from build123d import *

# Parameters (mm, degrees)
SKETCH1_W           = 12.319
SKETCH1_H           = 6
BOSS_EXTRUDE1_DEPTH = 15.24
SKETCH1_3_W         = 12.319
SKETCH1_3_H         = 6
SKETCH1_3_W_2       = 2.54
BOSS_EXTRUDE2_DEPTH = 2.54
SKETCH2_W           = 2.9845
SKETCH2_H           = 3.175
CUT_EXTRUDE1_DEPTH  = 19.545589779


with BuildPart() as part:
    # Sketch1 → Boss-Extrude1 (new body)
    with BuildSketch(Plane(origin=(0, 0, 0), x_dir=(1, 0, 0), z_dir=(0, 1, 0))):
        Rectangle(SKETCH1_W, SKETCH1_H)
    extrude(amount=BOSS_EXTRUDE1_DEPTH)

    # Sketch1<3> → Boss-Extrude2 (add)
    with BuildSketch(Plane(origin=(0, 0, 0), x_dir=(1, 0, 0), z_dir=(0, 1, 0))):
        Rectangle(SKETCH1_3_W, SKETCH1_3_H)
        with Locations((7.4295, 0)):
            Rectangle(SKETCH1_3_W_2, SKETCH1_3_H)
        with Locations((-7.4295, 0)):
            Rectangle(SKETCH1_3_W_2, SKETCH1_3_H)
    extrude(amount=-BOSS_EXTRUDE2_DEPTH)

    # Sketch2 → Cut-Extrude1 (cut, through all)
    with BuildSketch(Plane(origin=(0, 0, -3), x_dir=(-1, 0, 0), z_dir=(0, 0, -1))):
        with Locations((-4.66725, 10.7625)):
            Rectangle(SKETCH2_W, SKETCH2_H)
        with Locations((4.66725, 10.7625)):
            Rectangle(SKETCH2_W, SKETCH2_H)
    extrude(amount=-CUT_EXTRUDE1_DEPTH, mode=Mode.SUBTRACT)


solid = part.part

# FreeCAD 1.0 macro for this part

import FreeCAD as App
import Part
import Sketcher

V = App.Vector
Q = App.Units.Quantity

doc = App.newDocument("Part")
body = doc.addObject("PartDesign::Body", "Body")

# Sketch on XZ plane
sketch1 = body.newObject("Sketcher::SketchObject", "Sketch")
sketch1.AttachmentSupport = (doc.getObject("XZ_Plane"), [""])
sketch1.MapMode = "FlatFace"
sketch1.addGeometry([
    Part.LineSegment(V(-6, -3, 0), V(-6, 3, 0)),
    Part.LineSegment(V(-6, 3, 0), V(6, 3, 0)),
    Part.LineSegment(V(6, 3, 0), V(6, -3, 0)),
    Part.LineSegment(V(6, -3, 0), V(-6, -3, 0)),
], False)
sketch1.addConstraint([
    Sketcher.Constraint("Coincident", 0, 2, 1, 1),
    Sketcher.Constraint("Coincident", 1, 2, 2, 1),
    Sketcher.Constraint("Coincident", 2, 2, 3, 1),
    Sketcher.Constraint("Coincident", 3, 2, 0, 1),
    Sketcher.Constraint("Vertical", 0),
    Sketcher.Constraint("Horizontal", 1),
    Sketcher.Constraint("Vertical", 2),
    Sketcher.Constraint("Horizontal", 3),
    Sketcher.Constraint("Symmetric", 0, 2, 2, 2, -1, 1),
    Sketcher.Constraint("DistanceX", 1, 1, 1, 2, Q("0.485 in")),
    Sketcher.Constraint("DistanceY", 0, 1, 0, 2, 6.0),
])
pad1 = body.newObject("PartDesign::Pad", "Pad")
pad1.Profile = sketch1
pad1.Length = Q("0.6 in")
pad1.Reversed = True

# Sketch on XZ plane
sketch2 = body.newObject("Sketcher::SketchObject", "Sketch001")
sketch2.AttachmentSupport = (doc.getObject("XZ_Plane"), [""])
sketch2.MapMode = "FlatFace"
sketch2.addGeometry([
    Part.LineSegment(V(9, 3, 0), V(9, -3, 0)),
    Part.LineSegment(V(9, -3, 0), V(-9, -3, 0)),
    Part.LineSegment(V(-9, -3, 0), V(-9, 3, 0)),
    Part.LineSegment(V(-9, 3, 0), V(9, 3, 0)),
], False)
sketch2.addConstraint([
    Sketcher.Constraint("Coincident", 0, 2, 1, 1),
    Sketcher.Constraint("Coincident", 1, 2, 2, 1),
    Sketcher.Constraint("Coincident", 2, 2, 3, 1),
    Sketcher.Constraint("Coincident", 3, 2, 0, 1),
    Sketcher.Constraint("Vertical", 0),
    Sketcher.Constraint("Horizontal", 1),
    Sketcher.Constraint("Vertical", 2),
    Sketcher.Constraint("Horizontal", 3),
    Sketcher.Constraint("Symmetric", 0, 2, 2, 2, -1, 1),
    Sketcher.Constraint("DistanceX", 1, 2, 1, 1, Q("0.685 in")),
    Sketcher.Constraint("DistanceY", 0, 2, 0, 1, 6.0),
])
pad2 = body.newObject("PartDesign::Pad", "Pad001")
pad2.Profile = sketch2
pad2.Length = Q("0.1 in")

# Sketch on XY plane
sketch3 = body.newObject("Sketcher::SketchObject", "Sketch002")
sketch3.AttachmentSupport = (doc.getObject("XY_Plane"), [""])
sketch3.MapMode = "FlatFace"
sketch3.AttachmentOffset = App.Placement(V(0, 0, -3), App.Rotation())
sketch3.addGeometry([
    Part.LineSegment(V(6.2, 12.3, 0), V(6.2, 9.2, 0)),  # 0
    Part.LineSegment(V(6.2, 9.2, 0), V(3.2, 9.2, 0)),  # 1
    Part.LineSegment(V(3.2, 9.2, 0), V(3.2, 12.3, 0)),  # 2
    Part.LineSegment(V(3.2, 12.3, 0), V(6.2, 12.3, 0)),  # 3
    Part.LineSegment(V(-3.2, 12.3, 0), V(-3.2, 9.2, 0)),  # 4
    Part.LineSegment(V(-3.2, 9.2, 0), V(-6.2, 9.2, 0)),  # 5
    Part.LineSegment(V(-6.2, 9.2, 0), V(-6.2, 12.3, 0)),  # 6
    Part.LineSegment(V(-6.2, 12.3, 0), V(-3.2, 12.3, 0)),  # 7
], False)
sketch3.addConstraint([
    Sketcher.Constraint("Coincident", 0, 2, 1, 1),
    Sketcher.Constraint("Coincident", 1, 2, 2, 1),
    Sketcher.Constraint("Coincident", 2, 2, 3, 1),
    Sketcher.Constraint("Coincident", 3, 2, 0, 1),
    Sketcher.Constraint("Coincident", 4, 2, 5, 1),
    Sketcher.Constraint("Coincident", 5, 2, 6, 1),
    Sketcher.Constraint("Coincident", 6, 2, 7, 1),
    Sketcher.Constraint("Coincident", 7, 2, 4, 1),
    Sketcher.Constraint("Vertical", 0),
    Sketcher.Constraint("Horizontal", 1),
    Sketcher.Constraint("Vertical", 2),
    Sketcher.Constraint("Horizontal", 3),
    Sketcher.Constraint("Vertical", 4),
    Sketcher.Constraint("Horizontal", 5),
    Sketcher.Constraint("Vertical", 6),
    Sketcher.Constraint("Horizontal", 7),
    Sketcher.Constraint("Symmetric", 1, 2, 4, 2, -2),
    Sketcher.Constraint("Symmetric", 3, 2, 6, 2, -2),
    Sketcher.Constraint("DistanceY", 0, 2, 0, 1, Q("0.125 in")),
    Sketcher.Constraint("DistanceX", 4, 2, 1, 2, Q("0.25 in")),
    Sketcher.Constraint("DistanceX", 1, 2, 1, 1, Q("0.1175 in")),
    Sketcher.Constraint("DistanceY", -1, 1, 0, 2, 9.175),
])
pocket1 = body.newObject("PartDesign::Pocket", "Pocket")
pocket1.Profile = sketch3
pocket1.Type = "ThroughAll"
pocket1.Reversed = True

doc.recompute()
